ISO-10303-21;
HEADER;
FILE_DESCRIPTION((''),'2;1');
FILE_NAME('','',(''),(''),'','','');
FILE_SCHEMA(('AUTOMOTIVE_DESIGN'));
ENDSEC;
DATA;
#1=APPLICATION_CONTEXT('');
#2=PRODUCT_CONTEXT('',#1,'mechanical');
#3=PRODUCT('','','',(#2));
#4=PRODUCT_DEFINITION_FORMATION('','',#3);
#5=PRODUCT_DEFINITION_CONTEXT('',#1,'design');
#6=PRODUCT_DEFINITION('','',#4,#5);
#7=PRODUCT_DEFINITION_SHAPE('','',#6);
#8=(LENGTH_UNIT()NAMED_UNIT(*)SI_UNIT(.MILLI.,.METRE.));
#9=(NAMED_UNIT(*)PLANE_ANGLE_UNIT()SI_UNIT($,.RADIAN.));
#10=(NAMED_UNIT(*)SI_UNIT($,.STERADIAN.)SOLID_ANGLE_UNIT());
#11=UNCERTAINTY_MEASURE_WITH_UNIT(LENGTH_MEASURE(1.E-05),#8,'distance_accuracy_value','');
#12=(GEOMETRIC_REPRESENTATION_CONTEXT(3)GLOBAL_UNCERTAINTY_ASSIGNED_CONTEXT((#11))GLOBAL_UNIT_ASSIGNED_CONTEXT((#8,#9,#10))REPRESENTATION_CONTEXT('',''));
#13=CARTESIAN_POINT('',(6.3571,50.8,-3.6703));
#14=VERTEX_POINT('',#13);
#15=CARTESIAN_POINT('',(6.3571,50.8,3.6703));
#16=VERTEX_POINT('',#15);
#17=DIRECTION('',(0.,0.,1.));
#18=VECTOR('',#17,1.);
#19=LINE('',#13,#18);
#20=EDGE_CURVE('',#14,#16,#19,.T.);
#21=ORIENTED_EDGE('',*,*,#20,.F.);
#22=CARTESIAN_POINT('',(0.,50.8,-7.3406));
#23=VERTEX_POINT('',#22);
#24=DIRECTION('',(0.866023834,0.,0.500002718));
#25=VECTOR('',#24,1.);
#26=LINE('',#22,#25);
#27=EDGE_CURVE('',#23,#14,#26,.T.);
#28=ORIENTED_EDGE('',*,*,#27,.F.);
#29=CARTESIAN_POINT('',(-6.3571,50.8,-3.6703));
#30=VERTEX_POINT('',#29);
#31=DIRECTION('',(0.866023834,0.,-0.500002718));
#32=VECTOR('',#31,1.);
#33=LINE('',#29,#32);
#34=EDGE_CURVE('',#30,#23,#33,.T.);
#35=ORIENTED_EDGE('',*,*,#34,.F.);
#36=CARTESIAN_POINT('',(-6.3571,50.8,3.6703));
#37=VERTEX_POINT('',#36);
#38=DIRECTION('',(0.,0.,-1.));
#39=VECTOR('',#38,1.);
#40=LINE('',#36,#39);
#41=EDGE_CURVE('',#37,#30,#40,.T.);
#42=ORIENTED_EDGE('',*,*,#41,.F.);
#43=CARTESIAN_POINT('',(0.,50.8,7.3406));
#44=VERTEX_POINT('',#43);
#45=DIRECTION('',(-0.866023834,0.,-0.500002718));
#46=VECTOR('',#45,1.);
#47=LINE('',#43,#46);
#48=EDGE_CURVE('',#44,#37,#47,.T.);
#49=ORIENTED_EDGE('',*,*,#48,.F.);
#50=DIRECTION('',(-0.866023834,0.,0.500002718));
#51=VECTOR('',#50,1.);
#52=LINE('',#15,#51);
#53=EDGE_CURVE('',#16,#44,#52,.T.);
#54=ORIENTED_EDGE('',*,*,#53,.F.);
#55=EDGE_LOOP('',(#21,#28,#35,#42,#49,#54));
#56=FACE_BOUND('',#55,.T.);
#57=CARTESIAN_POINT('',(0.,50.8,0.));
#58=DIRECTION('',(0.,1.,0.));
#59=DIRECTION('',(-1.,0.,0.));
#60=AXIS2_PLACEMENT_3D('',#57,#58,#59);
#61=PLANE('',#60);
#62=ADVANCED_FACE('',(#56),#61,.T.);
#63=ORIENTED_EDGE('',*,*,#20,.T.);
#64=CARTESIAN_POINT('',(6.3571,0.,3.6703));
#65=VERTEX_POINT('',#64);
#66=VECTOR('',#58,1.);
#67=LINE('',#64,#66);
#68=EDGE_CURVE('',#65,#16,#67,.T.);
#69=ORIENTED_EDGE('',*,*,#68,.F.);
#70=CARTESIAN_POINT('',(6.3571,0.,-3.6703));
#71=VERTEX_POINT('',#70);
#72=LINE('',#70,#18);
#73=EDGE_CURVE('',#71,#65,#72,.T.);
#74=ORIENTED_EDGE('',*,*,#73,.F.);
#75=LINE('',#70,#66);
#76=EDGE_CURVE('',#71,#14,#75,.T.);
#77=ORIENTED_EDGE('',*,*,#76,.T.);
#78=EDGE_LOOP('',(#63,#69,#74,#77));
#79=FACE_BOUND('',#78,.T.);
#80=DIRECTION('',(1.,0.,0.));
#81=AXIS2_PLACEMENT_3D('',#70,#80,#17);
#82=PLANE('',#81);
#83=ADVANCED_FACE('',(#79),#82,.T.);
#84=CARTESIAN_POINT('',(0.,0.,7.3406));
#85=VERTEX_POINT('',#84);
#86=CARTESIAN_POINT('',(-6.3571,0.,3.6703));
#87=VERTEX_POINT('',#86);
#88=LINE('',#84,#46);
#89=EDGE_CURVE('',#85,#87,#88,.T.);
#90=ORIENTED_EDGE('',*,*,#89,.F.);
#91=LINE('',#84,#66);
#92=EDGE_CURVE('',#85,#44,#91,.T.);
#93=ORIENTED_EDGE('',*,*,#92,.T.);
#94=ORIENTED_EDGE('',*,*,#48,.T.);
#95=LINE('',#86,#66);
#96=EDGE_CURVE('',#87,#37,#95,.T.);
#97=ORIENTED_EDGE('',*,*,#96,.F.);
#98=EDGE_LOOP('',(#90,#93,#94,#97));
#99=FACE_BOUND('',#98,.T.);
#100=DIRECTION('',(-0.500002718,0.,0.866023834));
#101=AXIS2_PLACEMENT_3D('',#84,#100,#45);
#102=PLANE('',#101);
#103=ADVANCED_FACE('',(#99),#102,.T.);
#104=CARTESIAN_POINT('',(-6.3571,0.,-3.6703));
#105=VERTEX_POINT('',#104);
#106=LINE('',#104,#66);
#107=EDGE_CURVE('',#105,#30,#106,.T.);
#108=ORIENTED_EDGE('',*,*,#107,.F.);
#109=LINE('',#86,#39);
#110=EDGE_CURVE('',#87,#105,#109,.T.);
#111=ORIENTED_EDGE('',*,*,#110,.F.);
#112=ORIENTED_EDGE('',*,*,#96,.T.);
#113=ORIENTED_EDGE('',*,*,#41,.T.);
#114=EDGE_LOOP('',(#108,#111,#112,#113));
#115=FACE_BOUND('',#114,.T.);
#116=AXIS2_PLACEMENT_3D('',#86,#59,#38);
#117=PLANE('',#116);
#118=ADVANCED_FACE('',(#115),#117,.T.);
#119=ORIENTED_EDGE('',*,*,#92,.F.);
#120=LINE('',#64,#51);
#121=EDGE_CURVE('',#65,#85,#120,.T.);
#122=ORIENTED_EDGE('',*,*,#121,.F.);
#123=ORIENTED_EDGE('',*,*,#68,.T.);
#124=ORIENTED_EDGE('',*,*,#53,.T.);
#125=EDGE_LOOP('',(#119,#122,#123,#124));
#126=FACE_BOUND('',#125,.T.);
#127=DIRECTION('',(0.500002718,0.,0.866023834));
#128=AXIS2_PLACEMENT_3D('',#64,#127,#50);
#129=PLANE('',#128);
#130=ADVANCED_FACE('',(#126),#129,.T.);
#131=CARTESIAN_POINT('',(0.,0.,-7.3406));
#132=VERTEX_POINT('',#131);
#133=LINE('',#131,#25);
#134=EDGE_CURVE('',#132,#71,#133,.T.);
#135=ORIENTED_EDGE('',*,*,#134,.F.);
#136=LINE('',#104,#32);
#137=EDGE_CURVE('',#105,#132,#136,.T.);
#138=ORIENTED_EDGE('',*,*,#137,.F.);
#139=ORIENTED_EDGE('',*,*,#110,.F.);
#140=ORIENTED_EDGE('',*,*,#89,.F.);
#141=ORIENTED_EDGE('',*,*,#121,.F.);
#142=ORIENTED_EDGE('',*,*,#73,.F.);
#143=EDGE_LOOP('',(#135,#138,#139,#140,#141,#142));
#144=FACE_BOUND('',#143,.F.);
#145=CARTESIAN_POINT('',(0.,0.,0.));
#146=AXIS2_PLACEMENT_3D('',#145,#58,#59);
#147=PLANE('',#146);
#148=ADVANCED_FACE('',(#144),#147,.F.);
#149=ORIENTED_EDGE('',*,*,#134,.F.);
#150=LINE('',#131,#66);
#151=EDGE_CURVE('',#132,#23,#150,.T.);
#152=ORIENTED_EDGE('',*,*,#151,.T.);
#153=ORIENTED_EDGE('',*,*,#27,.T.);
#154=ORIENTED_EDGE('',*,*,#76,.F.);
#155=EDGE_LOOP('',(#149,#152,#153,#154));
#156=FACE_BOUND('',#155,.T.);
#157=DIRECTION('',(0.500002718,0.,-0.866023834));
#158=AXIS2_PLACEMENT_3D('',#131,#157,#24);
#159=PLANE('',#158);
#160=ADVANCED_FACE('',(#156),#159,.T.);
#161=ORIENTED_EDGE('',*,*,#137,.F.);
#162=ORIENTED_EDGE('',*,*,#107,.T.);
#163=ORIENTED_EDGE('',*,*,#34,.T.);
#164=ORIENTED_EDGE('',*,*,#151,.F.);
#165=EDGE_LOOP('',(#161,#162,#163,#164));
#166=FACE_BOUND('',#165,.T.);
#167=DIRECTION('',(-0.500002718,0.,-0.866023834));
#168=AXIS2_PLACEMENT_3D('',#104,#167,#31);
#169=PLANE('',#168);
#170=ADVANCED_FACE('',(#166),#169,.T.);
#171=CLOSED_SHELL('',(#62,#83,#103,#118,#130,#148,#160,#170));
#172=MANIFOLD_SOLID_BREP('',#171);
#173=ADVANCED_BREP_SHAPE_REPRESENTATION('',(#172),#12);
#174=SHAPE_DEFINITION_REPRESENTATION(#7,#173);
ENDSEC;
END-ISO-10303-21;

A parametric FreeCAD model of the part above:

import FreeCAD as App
import Part
import Sketcher

V = App.Vector
Q = App.Units.Quantity


def add_polygon(sketch, points):
    """Adds a closed chain of lines whose ends are joined by coincident constraints."""
    first, n = sketch.GeometryCount, len(points)
    for a, b in zip(points, points[1:] + points[:1]):
        sketch.addGeometry(Part.LineSegment(App.Vector(*a, 0), App.Vector(*b, 0)), False)
    for i in range(n):
        sketch.addConstraint(Sketcher.Constraint("Coincident", first + i, 2, first + (i + 1) % n, 1))

doc = App.newDocument("Part")
body = doc.addObject("PartDesign::Body", "Body")

sketch1 = body.newObject("Sketcher::SketchObject", "Sketch")
sketch1.AttachmentSupport = (doc.getObject("XZ_Plane"), [""])
sketch1.MapMode = "FlatFace"
add_polygon(sketch1, [(6, -4), (0, -7), (-6, -4), (-6, 4), (0, 7), (6, 4)])
sketch1.addConstraint([
    Sketcher.Constraint("Vertical", 2),
    Sketcher.Constraint("Vertical", 5),
    Sketcher.Constraint("Symmetric", 0, 2, 3, 2, -1, 1),
    Sketcher.Constraint("Symmetric", 1, 2, 4, 2, -1, 1),
    Sketcher.Constraint("PointOnObject", 0, 2, -2),
    Sketcher.Constraint("Parallel", 0, 3),
    Sketcher.Constraint("Horizontal", 2, 2, 4, 2),
    Sketcher.Constraint("DistanceY", 2, 1, 2, 2, Q("0.289 in")),
    Sketcher.Constraint("Distance", 0, Q("0.289 in")),
    Sketcher.Constraint("DistanceY", 0, 2, -1, 1, Q("0.289 in")),
])
pad1 = body.newObject("PartDesign::Pad", "Pad")
pad1.Profile = sketch1
pad1.Length = Q("2 in")
pad1.Reversed = True

doc.recompute()
